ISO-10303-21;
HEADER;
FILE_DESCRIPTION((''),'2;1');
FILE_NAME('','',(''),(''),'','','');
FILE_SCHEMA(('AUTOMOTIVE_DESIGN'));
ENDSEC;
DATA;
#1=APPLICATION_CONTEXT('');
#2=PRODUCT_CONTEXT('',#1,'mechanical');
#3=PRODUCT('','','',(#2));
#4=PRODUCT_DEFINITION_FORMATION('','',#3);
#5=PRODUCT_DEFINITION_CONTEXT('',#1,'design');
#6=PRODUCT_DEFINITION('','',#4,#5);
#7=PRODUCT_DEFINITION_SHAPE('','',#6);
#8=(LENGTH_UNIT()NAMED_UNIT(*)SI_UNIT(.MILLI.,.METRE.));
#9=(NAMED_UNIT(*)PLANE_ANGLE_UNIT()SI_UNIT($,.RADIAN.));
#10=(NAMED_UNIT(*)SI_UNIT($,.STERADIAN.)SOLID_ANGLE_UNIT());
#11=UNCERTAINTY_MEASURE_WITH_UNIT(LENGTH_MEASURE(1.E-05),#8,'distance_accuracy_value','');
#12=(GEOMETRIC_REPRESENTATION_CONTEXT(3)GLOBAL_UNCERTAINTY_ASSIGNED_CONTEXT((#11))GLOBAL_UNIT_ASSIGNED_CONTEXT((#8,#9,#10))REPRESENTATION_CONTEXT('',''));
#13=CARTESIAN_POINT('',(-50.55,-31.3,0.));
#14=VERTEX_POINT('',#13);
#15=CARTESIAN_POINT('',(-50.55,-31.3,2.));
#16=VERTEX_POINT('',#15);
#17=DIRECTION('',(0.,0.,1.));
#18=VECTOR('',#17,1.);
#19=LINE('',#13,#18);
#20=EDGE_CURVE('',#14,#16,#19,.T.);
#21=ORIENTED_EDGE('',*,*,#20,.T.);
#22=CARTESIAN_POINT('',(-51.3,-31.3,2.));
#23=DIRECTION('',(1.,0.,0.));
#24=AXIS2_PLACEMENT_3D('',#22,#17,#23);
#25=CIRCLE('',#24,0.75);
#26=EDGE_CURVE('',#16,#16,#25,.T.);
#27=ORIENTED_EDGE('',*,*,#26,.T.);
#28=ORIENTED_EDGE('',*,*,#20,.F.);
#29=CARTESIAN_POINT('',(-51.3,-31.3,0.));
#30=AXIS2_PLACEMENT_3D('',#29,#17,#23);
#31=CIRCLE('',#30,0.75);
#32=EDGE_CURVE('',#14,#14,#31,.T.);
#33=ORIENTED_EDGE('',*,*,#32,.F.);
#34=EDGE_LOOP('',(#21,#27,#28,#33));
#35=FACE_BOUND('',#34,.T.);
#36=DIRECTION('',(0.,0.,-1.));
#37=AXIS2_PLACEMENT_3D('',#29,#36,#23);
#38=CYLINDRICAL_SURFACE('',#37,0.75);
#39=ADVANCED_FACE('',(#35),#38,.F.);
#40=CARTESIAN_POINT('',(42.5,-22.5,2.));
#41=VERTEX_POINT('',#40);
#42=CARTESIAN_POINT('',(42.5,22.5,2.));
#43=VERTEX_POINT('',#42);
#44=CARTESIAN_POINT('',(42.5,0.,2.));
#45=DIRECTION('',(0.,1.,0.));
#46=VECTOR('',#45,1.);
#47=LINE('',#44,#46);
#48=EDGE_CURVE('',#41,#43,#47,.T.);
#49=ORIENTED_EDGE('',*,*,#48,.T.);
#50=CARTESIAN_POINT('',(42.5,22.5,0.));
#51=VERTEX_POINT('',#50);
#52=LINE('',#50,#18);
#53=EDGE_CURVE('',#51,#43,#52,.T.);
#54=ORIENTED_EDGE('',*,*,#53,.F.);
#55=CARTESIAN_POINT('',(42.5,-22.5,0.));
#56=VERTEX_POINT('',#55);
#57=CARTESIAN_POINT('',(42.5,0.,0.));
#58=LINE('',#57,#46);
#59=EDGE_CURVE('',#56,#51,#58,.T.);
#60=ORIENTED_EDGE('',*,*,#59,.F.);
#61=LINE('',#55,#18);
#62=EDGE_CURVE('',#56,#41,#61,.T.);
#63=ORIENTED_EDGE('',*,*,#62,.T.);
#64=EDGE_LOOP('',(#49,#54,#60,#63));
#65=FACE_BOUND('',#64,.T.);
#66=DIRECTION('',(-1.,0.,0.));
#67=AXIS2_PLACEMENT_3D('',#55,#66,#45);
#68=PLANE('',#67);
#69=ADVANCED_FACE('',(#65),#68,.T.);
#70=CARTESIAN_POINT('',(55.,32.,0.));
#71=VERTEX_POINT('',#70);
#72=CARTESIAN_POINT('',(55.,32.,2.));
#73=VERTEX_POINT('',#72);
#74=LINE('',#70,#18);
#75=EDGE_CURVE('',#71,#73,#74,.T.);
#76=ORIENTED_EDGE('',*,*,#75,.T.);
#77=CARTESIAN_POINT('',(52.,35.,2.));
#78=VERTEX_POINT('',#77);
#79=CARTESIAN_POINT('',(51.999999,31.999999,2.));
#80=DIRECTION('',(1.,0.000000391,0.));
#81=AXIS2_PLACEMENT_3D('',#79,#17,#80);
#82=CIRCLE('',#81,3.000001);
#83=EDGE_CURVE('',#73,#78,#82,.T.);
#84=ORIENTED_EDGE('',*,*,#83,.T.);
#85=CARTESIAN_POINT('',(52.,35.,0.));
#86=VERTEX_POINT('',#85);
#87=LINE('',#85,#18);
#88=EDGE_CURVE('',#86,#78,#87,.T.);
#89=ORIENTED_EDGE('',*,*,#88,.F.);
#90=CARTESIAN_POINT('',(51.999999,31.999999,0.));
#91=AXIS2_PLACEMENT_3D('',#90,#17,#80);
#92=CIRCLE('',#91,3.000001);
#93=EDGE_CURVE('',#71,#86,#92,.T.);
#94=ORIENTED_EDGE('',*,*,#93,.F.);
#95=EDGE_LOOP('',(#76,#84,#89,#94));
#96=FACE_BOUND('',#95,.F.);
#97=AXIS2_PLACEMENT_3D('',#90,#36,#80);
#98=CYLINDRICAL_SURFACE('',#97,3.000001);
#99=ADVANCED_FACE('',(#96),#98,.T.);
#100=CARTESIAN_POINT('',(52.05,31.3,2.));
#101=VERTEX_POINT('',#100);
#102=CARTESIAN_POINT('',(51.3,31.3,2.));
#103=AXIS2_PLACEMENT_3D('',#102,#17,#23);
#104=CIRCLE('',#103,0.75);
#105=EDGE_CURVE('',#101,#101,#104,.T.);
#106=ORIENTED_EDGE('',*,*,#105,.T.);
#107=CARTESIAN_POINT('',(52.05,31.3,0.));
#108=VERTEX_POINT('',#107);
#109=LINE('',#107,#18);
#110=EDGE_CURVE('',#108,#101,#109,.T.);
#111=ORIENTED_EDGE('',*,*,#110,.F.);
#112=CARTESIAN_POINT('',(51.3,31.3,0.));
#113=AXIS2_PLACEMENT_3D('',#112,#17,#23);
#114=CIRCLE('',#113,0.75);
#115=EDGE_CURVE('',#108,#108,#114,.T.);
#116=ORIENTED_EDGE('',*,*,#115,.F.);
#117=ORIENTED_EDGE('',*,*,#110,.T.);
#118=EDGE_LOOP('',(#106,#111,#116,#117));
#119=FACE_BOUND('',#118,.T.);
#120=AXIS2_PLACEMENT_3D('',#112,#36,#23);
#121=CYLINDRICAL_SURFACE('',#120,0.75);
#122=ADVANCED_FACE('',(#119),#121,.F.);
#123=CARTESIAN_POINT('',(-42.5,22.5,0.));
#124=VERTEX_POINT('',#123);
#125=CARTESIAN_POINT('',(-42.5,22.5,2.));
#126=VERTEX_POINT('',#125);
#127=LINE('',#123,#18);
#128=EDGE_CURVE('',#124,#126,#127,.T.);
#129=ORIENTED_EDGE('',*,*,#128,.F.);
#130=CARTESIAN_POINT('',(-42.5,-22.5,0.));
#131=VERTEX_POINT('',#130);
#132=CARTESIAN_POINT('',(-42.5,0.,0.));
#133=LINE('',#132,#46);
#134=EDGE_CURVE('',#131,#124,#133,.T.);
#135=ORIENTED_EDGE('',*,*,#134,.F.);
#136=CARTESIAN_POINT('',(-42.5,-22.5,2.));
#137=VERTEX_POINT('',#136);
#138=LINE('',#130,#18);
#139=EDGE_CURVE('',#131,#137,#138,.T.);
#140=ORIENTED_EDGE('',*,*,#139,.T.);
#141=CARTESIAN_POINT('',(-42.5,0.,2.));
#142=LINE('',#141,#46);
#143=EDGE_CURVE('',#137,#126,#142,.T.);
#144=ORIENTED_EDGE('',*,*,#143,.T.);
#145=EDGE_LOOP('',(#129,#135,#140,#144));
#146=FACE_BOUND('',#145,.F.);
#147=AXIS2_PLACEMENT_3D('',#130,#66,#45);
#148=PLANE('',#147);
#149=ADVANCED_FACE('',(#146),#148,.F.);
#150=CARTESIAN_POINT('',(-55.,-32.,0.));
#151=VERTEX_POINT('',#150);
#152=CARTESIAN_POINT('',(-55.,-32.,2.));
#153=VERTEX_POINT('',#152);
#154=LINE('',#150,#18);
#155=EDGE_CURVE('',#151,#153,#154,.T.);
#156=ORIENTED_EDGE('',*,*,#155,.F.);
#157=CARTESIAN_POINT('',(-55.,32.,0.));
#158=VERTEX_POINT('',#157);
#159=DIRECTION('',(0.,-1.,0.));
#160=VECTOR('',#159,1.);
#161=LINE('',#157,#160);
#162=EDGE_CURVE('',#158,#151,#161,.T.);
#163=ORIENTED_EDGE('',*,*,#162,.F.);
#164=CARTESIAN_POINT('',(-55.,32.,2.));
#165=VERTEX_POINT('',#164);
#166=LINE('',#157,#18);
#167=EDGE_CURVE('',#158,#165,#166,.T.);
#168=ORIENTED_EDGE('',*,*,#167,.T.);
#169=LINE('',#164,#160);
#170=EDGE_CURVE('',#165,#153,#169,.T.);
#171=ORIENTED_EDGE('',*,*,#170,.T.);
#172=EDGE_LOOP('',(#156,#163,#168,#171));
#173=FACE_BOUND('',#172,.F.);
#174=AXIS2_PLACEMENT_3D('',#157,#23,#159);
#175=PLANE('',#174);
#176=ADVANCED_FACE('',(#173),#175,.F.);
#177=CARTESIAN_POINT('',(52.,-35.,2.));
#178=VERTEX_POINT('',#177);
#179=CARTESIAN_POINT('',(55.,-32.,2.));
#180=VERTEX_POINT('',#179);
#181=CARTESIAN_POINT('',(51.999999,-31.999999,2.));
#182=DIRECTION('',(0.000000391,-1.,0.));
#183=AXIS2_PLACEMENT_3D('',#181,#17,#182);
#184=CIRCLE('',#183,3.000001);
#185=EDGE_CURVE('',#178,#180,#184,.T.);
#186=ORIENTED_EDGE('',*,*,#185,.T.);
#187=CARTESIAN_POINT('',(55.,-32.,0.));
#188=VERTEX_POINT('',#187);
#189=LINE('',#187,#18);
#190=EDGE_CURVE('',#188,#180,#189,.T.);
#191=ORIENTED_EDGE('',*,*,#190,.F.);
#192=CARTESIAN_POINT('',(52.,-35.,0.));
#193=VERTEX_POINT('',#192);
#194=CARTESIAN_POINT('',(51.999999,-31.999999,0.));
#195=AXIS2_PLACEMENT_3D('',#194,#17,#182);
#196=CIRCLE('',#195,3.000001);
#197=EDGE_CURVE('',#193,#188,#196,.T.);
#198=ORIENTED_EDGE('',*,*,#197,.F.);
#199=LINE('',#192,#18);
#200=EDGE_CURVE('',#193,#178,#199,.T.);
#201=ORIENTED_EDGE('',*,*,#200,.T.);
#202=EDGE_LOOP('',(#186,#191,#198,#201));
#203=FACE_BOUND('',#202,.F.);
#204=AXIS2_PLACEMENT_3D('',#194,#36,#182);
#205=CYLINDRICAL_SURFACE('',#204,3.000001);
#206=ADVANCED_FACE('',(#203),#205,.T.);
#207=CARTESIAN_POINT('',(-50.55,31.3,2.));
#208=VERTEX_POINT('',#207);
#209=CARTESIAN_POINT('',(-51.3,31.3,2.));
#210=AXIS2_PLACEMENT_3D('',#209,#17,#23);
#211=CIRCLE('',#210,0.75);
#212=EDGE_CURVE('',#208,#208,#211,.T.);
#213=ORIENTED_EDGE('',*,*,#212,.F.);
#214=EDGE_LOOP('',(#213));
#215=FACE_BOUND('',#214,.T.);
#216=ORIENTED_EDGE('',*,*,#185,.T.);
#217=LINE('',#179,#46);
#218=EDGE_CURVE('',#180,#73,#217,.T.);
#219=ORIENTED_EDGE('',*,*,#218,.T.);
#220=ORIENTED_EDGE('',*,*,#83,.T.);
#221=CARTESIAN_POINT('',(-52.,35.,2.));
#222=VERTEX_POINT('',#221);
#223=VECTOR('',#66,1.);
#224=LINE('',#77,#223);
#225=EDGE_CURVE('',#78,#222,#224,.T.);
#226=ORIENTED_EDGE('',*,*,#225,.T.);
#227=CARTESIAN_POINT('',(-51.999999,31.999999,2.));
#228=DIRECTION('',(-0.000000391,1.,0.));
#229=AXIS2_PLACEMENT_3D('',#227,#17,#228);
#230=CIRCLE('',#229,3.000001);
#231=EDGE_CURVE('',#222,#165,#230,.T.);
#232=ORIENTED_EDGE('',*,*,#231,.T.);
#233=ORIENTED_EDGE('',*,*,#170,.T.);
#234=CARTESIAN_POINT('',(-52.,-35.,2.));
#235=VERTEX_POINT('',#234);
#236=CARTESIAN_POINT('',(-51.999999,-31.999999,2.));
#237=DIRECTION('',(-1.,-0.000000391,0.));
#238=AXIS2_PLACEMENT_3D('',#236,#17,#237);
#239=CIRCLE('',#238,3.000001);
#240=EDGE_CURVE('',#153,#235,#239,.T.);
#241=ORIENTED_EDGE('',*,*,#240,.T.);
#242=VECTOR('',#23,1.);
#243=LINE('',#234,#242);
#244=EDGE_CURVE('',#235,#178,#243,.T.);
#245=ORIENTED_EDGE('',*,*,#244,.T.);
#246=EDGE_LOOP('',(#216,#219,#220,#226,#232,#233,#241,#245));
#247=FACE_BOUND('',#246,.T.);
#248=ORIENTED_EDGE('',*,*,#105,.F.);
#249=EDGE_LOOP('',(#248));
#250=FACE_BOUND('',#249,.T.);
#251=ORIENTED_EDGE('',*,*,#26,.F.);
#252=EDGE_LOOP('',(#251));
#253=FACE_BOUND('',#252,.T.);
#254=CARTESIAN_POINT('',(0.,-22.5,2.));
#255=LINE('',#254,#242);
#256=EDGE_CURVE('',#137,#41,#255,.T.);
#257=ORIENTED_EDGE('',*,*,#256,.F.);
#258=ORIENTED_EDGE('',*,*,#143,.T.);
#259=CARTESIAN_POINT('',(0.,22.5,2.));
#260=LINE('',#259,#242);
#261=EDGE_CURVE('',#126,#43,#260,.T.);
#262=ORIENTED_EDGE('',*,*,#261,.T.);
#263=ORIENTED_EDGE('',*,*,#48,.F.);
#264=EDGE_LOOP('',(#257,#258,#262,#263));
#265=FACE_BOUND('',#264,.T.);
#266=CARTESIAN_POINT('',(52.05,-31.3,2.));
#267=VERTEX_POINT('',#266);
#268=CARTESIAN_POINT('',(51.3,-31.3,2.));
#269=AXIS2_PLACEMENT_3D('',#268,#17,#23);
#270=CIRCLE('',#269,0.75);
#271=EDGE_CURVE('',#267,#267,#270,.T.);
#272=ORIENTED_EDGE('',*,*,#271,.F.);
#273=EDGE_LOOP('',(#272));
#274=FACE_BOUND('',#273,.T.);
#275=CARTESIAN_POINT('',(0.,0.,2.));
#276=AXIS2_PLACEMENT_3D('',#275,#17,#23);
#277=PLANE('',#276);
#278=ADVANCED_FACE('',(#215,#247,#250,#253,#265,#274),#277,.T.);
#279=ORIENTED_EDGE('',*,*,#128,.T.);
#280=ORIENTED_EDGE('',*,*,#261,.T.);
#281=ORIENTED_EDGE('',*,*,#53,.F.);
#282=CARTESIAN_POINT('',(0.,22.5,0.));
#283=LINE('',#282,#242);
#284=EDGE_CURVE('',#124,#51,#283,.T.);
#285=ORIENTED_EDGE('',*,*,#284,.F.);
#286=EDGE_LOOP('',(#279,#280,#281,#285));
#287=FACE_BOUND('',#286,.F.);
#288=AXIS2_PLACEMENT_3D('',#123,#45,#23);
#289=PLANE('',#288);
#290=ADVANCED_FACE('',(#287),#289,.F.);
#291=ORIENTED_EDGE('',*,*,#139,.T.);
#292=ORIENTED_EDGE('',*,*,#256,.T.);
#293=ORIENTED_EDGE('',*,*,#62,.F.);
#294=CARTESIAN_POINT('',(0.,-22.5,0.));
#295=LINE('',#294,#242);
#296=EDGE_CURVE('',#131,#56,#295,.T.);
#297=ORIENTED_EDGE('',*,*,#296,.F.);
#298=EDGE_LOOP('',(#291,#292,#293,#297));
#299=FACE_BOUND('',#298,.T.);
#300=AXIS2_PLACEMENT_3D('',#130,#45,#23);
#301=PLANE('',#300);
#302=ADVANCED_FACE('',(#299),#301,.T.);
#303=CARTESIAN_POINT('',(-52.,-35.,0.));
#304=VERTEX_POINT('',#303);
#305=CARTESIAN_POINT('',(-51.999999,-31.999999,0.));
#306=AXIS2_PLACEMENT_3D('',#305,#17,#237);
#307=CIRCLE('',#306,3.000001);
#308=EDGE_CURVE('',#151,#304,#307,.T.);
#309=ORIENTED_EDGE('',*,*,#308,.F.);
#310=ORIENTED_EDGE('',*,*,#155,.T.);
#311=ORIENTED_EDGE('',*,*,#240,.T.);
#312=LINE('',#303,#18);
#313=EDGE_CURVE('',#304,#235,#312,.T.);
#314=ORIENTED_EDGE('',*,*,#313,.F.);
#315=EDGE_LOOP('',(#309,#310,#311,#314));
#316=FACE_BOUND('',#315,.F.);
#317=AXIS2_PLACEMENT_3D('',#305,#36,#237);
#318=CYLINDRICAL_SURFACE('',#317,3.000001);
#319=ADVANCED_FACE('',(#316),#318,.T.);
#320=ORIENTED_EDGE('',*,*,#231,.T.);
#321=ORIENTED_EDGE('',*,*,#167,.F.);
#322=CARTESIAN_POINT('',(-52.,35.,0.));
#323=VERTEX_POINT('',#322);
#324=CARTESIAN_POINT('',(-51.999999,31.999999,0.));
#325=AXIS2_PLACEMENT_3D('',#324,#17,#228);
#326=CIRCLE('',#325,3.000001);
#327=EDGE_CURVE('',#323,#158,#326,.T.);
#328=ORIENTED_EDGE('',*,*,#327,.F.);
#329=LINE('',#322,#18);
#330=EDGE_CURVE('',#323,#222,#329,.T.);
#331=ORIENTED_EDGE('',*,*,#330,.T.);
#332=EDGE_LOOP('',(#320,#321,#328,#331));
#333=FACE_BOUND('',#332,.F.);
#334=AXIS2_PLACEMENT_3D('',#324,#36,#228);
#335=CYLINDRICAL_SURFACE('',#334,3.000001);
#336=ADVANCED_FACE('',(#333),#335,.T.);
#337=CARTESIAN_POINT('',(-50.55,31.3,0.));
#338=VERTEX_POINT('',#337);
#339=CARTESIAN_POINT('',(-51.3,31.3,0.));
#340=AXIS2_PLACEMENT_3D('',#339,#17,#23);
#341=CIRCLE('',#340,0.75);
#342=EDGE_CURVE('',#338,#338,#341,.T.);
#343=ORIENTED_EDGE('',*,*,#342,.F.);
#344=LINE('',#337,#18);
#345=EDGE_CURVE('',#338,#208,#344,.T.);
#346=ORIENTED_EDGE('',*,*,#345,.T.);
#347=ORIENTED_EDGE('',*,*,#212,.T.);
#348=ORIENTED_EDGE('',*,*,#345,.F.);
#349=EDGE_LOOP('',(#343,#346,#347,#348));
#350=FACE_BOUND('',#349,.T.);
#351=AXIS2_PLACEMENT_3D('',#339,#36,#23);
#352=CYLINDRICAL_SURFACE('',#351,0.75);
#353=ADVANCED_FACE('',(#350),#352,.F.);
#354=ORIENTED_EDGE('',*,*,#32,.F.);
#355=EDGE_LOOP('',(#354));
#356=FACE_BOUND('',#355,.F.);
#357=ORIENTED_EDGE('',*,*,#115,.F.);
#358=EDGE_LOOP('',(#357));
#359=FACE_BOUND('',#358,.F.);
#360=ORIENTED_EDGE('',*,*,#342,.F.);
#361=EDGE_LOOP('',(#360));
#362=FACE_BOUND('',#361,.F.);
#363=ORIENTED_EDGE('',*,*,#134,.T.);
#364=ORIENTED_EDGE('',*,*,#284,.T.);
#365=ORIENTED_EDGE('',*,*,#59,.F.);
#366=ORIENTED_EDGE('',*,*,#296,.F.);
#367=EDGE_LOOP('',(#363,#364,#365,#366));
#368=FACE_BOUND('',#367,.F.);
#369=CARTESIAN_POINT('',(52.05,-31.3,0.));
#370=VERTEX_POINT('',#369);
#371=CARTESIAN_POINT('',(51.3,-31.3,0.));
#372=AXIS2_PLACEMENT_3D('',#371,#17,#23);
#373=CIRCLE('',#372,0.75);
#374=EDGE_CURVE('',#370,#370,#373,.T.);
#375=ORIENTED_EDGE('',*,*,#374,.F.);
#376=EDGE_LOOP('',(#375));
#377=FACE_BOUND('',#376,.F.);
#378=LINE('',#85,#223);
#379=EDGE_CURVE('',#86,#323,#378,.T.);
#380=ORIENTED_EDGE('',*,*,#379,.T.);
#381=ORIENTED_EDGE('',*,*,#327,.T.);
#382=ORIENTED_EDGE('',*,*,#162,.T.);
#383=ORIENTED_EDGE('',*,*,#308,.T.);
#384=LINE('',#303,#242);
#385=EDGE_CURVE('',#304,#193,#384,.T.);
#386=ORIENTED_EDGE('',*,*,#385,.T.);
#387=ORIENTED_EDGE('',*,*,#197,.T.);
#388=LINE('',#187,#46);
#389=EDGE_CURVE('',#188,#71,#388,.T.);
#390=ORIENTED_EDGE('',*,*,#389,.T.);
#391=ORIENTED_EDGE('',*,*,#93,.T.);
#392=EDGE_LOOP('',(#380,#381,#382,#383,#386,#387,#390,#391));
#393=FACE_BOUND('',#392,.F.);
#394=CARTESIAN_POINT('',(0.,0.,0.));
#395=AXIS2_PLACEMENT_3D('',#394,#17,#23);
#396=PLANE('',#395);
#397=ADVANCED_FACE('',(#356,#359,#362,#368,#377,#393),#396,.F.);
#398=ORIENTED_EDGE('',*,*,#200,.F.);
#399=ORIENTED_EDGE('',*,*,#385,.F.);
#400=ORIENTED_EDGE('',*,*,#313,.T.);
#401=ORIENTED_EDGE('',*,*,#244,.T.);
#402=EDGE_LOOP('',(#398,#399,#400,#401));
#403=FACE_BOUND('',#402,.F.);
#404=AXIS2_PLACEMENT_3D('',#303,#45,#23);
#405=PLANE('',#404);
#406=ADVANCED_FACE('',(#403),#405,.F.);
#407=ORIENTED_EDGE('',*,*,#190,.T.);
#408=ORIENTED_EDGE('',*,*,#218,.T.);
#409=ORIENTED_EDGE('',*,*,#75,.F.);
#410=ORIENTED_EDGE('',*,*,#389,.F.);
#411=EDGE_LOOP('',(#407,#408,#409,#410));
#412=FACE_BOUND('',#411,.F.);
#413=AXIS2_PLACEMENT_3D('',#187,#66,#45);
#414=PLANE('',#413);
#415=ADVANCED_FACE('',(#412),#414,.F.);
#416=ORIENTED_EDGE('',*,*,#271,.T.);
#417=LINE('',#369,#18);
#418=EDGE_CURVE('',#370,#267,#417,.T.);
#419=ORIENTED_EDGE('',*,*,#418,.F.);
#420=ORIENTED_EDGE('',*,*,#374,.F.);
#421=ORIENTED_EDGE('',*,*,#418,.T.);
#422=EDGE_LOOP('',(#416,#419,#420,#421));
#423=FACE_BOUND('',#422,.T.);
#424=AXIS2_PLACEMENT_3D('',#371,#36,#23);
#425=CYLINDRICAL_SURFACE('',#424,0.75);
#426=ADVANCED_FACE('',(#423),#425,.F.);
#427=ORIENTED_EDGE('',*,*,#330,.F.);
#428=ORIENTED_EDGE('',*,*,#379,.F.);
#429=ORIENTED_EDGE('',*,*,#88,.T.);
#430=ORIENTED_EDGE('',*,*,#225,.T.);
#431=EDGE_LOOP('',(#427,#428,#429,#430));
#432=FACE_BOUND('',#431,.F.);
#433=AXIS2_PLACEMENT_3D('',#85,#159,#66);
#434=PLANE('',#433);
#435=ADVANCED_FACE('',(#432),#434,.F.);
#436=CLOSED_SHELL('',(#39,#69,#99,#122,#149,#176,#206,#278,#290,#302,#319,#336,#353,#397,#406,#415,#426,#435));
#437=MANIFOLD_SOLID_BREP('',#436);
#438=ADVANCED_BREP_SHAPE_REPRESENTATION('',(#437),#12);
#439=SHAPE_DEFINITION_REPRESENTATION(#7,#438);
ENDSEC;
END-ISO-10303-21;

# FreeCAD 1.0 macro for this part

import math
import FreeCAD as App
import Part
import Sketcher
from FreeCAD import Vector
Q = App.Units.Quantity


def add_polygon(sketch, points):
    """Adds a closed chain of lines whose ends are joined by coincident constraints."""
    first, n = sketch.GeometryCount, len(points)
    for a, b in zip(points, points[1:] + points[:1]):
        sketch.addGeometry(Part.LineSegment(App.Vector(*a, 0), App.Vector(*b, 0)), False)
    for i in range(n):
        sketch.addConstraint(Sketcher.Constraint("Coincident", first + i, 2, first + (i + 1) % n, 1))

doc = App.newDocument("Part")
params = doc.addObject("Spreadsheet::Sheet", "Params")
for row, (alias, value) in enumerate([
    ("sketch1_radius", "3.000001 mm"),
    ("sketch1_diameter", "1.5 mm"),
    ("sketch1_width", "104 mm"),
    ("sketch1_width2", "85 mm"),
    ("sketch1_height", "64 mm"),
    ("pad1_length", "2 mm"),
], start=1):
    params.set(f"A{row}", alias)
    params.set(f"B{row}", "=" + value)
    params.setAlias(f"B{row}", alias)

body = doc.addObject("PartDesign::Body", "Body")

sketch1 = body.newObject("Sketcher::SketchObject", "Sketch")
sketch1.AttachmentSupport = (doc.getObject("XY_Plane"), [""])
sketch1.MapMode = "FlatFace"
sketch1.addGeometry(Part.ArcOfCircle(Part.Circle(Vector(52, 32, 0), Vector(0, 0, 1), 3), math.radians(0), math.radians(90)), False)
sketch1.addGeometry(Part.LineSegment(Vector(52, 35, 0), Vector(-52, 35, 0)), False)
sketch1.addGeometry(Part.ArcOfCircle(Part.Circle(Vector(-52, 32, 0), Vector(0, 0, 1), 3), math.radians(90), math.radians(180)), False)
sketch1.addGeometry(Part.LineSegment(Vector(-55, 32, 0), Vector(-55, -32, 0)), False)
sketch1.addGeometry(Part.ArcOfCircle(Part.Circle(Vector(-52, -32, 0), Vector(0, 0, 1), 3), math.radians(-180), math.radians(-90)), False)
sketch1.addGeometry(Part.LineSegment(Vector(-52, -35, 0), Vector(52, -35, 0)), False)
sketch1.addGeometry(Part.ArcOfCircle(Part.Circle(Vector(52, -32, 0), Vector(0, 0, 1), 3), math.radians(-90), math.radians(0)), False)
sketch1.addGeometry(Part.LineSegment(Vector(55, -32, 0), Vector(55, 32, 0)), False)
sketch1.addGeometry(Part.Circle(Vector(-51.3, -31.3, 0), Vector(0, 0, 1), 0.8), False)
sketch1.addGeometry(Part.Circle(Vector(51.3, -31.3, 0), Vector(0, 0, 1), 0.8), False)
sketch1.addGeometry(Part.Circle(Vector(-51.3, 31.3, 0), Vector(0, 0, 1), 0.8), False)
add_polygon(sketch1, [(42.5, -22.5), (-42.5, -22.5), (-42.5, 22.5), (42.5, 22.5)])
sketch1.addGeometry(Part.Circle(Vector(51.3, 31.3, 0), Vector(0, 0, 1), 0.8), False)
sketch1.addConstraint([
    Sketcher.Constraint("Tangent", 0, 2, 1, 1),
    Sketcher.Constraint("Tangent", 1, 2, 2, 1),
    Sketcher.Constraint("Tangent", 2, 2, 3, 1),
    Sketcher.Constraint("Tangent", 3, 2, 4, 1),
    Sketcher.Constraint("Tangent", 4, 2, 5, 1),
    Sketcher.Constraint("Tangent", 5, 2, 6, 1),
    Sketcher.Constraint("Tangent", 6, 2, 7, 1),
    Sketcher.Constraint("Tangent", 7, 2, 0, 1),
    Sketcher.Constraint("Horizontal", 1),
    Sketcher.Constraint("Vertical", 3),
    Sketcher.Constraint("Horizontal", 5),
    Sketcher.Constraint("Vertical", 7),
    Sketcher.Constraint("Horizontal", 11),
    Sketcher.Constraint("Vertical", 12),
    Sketcher.Constraint("Horizontal", 13),
    Sketcher.Constraint("Vertical", 14),
    Sketcher.Constraint("Equal", 0, 2),
    Sketcher.Constraint("Equal", 2, 4),
    Sketcher.Constraint("Equal", 4, 6),
    Sketcher.Constraint("Equal", 8, 9),
    Sketcher.Constraint("Equal", 9, 10),
    Sketcher.Constraint("Equal", 10, 15),
    Sketcher.Constraint("Symmetric", 0, 3, 4, 3, -1, 1),
    Sketcher.Constraint("Symmetric", 9, 3, 10, 3, -1, 1),
    Sketcher.Constraint("Symmetric", 8, 3, 15, 3, -1, 1),
    Sketcher.Constraint("Symmetric", 11, 2, 13, 2, -1, 1),
    Sketcher.Constraint("Symmetric", 8, 3, 9, 3, -2),
    Sketcher.Constraint("Radius", 0, Q("3.000001 mm")),
    Sketcher.Constraint("Diameter", 8, Q("1.5 mm")),
    Sketcher.Constraint("DistanceX", 1, 2, 1, 1, Q("104 mm")),
    Sketcher.Constraint("DistanceX", 11, 2, 11, 1, Q("85 mm")),
    Sketcher.Constraint("DistanceY", 3, 2, 3, 1, Q("64 mm")),
    Sketcher.Constraint("DistanceY", 12, 1, 12, 2, Q("45 mm")),
    Sketcher.Constraint("DistanceX", 8, 3, -1, 1, Q("51.3 mm")),
    Sketcher.Constraint("DistanceY", 8, 3, -1, 1, Q("31.3 mm")),
])
sketch1.setExpression("Constraints[31]", "Params.sketch1_radius")
sketch1.setExpression("Constraints[32]", "Params.sketch1_diameter")
sketch1.setExpression("Constraints[33]", "Params.sketch1_width")
sketch1.setExpression("Constraints[34]", "Params.sketch1_width2")
sketch1.setExpression("Constraints[35]", "Params.sketch1_height")
pad1 = body.newObject("PartDesign::Pad", "Pad")
pad1.Profile = sketch1
pad1.setExpression("Length", "Params.pad1_length")

doc.recompute()
